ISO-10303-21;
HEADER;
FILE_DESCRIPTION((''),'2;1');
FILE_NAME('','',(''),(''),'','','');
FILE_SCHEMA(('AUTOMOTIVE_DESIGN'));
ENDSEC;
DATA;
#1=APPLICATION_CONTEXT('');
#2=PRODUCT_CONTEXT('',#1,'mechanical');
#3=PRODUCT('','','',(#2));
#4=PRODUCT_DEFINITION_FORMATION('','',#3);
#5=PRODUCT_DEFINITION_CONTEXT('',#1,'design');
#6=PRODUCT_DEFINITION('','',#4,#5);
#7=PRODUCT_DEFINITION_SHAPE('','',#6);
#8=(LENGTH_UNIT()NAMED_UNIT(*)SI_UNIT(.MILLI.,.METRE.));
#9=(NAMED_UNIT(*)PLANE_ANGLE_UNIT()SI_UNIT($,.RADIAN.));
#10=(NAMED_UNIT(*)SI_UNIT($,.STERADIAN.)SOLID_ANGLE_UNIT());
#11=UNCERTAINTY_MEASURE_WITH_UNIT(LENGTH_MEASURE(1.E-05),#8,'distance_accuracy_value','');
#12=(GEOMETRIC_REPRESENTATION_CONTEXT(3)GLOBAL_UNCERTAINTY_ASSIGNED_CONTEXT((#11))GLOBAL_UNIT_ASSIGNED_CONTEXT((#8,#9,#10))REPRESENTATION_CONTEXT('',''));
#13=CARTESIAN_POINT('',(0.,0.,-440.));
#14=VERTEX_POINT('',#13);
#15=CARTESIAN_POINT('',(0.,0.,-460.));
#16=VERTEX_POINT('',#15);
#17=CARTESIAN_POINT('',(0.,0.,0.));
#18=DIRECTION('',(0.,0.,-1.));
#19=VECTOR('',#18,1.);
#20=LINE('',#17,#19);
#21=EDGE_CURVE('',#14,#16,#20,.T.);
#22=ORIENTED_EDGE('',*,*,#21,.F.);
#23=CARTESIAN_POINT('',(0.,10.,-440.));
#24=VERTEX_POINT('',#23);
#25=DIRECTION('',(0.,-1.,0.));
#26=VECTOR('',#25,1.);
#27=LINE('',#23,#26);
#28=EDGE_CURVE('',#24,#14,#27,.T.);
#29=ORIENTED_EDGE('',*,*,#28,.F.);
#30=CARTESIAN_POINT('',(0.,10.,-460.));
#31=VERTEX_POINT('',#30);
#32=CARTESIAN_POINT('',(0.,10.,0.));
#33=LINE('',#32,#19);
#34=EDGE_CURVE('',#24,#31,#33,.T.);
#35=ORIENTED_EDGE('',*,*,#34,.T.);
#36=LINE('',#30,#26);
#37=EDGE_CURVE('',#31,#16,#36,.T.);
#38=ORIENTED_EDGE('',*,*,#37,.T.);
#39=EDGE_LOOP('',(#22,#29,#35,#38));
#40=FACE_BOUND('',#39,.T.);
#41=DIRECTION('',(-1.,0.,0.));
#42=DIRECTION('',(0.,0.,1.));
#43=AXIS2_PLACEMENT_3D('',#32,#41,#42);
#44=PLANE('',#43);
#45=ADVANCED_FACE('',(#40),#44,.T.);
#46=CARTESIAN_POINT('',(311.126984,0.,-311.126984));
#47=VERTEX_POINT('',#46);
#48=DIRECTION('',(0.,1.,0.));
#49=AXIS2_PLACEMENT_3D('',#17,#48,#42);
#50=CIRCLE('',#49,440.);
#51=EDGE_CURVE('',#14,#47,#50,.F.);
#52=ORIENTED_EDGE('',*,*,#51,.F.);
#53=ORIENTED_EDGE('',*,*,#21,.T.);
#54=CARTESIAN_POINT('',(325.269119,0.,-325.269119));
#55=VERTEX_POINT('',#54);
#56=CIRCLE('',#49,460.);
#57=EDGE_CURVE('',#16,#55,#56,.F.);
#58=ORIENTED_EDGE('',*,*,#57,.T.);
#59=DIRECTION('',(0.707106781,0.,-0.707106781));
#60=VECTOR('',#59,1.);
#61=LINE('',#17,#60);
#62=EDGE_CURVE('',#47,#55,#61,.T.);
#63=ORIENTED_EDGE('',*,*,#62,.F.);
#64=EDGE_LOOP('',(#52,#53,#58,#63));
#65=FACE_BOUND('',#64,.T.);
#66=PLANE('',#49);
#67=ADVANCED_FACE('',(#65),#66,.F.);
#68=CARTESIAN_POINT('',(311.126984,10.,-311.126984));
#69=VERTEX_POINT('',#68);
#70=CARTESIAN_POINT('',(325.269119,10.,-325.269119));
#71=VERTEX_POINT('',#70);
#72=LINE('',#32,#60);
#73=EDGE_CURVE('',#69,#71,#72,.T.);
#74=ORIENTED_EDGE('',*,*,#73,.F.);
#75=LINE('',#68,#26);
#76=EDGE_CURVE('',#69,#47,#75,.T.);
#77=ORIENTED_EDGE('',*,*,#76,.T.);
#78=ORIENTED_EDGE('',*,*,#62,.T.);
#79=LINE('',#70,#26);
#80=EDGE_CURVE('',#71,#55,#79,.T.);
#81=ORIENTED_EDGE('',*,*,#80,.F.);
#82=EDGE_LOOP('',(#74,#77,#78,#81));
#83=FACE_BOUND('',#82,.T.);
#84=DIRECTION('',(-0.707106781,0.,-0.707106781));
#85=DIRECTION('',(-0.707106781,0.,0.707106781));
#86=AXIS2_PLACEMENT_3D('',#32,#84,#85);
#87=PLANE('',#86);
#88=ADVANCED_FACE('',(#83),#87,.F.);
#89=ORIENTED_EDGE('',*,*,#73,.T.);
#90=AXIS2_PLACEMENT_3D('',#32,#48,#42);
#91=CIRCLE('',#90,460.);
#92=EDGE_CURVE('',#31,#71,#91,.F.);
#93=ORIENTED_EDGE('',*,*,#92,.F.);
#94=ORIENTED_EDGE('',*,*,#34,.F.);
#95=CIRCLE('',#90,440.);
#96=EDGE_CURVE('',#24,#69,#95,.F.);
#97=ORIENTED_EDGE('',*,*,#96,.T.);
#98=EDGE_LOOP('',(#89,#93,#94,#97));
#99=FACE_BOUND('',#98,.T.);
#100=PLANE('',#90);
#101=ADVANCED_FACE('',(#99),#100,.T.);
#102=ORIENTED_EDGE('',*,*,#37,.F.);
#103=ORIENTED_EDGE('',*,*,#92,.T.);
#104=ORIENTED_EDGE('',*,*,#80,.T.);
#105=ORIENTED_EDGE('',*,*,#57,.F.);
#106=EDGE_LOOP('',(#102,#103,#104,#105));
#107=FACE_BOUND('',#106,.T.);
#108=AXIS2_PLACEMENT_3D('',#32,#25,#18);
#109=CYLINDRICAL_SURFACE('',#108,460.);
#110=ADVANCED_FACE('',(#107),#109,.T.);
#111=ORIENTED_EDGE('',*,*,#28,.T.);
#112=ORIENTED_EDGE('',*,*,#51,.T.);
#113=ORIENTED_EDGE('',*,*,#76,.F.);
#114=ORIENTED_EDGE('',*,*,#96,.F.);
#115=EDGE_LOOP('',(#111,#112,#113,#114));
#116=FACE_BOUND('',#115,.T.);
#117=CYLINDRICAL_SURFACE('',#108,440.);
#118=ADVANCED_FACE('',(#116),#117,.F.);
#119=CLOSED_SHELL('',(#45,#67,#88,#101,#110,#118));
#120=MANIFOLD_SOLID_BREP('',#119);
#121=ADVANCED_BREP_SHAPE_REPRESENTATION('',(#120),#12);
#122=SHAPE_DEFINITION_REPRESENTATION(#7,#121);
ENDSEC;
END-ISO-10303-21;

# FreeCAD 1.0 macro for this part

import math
import FreeCAD as App
import Part
import Sketcher
Q = App.Units.Quantity

doc = App.newDocument("Part")
body = doc.addObject("PartDesign::Body", "Body")

sketch1 = doc.addObject("Sketcher::SketchObject", "Sketch")
body.addObject(sketch1)
sketch1.AttachmentSupport = (doc.XZ_Plane, [""])
sketch1.MapMode = "FlatFace"
sketch1.addGeometry([
    Part.ArcOfCircle(Part.Circle(App.Vector(0, 0, 0), App.Vector(0, 0, 1), 460), math.radians(-90), math.radians(-45)),
    Part.LineSegment(App.Vector(0, -460, 0), App.Vector(0, -440, 0)),
    Part.ArcOfCircle(Part.Circle(App.Vector(0, 0, 0), App.Vector(0, 0, 1), 440), math.radians(-90), math.radians(-45)),
    Part.LineSegment(App.Vector(311, -311, 0), App.Vector(325, -325, 0)),
], False)
sketch1.addConstraint([
    Sketcher.Constraint("Coincident", 0, 1, 1, 1),
    Sketcher.Constraint("Coincident", 1, 2, 2, 1),
    Sketcher.Constraint("Coincident", 2, 2, 3, 1),
    Sketcher.Constraint("Coincident", 3, 2, 0, 2),
    Sketcher.Constraint("Vertical", 1),
    Sketcher.Constraint("Coincident", 0, 3, -1, 1),
    Sketcher.Constraint("Coincident", 2, 3, -1, 1),
    Sketcher.Constraint("PointOnObject", 1, 2, -2),
    Sketcher.Constraint("Radius", 0, Q("460 mm")),
    Sketcher.Constraint("Radius", 2, Q("440 mm")),
    Sketcher.Constraint("Angle", 3, Q("-45 deg")),
    Sketcher.Constraint("DistanceX", -1, 1, 3, 2, Q("325.269119 mm")),
])
pad1 = doc.addObject("PartDesign::Pad", "Pad")
body.addObject(pad1)
pad1.Profile = sketch1
pad1.Length = 10
pad1.Reversed = True

doc.recompute()
